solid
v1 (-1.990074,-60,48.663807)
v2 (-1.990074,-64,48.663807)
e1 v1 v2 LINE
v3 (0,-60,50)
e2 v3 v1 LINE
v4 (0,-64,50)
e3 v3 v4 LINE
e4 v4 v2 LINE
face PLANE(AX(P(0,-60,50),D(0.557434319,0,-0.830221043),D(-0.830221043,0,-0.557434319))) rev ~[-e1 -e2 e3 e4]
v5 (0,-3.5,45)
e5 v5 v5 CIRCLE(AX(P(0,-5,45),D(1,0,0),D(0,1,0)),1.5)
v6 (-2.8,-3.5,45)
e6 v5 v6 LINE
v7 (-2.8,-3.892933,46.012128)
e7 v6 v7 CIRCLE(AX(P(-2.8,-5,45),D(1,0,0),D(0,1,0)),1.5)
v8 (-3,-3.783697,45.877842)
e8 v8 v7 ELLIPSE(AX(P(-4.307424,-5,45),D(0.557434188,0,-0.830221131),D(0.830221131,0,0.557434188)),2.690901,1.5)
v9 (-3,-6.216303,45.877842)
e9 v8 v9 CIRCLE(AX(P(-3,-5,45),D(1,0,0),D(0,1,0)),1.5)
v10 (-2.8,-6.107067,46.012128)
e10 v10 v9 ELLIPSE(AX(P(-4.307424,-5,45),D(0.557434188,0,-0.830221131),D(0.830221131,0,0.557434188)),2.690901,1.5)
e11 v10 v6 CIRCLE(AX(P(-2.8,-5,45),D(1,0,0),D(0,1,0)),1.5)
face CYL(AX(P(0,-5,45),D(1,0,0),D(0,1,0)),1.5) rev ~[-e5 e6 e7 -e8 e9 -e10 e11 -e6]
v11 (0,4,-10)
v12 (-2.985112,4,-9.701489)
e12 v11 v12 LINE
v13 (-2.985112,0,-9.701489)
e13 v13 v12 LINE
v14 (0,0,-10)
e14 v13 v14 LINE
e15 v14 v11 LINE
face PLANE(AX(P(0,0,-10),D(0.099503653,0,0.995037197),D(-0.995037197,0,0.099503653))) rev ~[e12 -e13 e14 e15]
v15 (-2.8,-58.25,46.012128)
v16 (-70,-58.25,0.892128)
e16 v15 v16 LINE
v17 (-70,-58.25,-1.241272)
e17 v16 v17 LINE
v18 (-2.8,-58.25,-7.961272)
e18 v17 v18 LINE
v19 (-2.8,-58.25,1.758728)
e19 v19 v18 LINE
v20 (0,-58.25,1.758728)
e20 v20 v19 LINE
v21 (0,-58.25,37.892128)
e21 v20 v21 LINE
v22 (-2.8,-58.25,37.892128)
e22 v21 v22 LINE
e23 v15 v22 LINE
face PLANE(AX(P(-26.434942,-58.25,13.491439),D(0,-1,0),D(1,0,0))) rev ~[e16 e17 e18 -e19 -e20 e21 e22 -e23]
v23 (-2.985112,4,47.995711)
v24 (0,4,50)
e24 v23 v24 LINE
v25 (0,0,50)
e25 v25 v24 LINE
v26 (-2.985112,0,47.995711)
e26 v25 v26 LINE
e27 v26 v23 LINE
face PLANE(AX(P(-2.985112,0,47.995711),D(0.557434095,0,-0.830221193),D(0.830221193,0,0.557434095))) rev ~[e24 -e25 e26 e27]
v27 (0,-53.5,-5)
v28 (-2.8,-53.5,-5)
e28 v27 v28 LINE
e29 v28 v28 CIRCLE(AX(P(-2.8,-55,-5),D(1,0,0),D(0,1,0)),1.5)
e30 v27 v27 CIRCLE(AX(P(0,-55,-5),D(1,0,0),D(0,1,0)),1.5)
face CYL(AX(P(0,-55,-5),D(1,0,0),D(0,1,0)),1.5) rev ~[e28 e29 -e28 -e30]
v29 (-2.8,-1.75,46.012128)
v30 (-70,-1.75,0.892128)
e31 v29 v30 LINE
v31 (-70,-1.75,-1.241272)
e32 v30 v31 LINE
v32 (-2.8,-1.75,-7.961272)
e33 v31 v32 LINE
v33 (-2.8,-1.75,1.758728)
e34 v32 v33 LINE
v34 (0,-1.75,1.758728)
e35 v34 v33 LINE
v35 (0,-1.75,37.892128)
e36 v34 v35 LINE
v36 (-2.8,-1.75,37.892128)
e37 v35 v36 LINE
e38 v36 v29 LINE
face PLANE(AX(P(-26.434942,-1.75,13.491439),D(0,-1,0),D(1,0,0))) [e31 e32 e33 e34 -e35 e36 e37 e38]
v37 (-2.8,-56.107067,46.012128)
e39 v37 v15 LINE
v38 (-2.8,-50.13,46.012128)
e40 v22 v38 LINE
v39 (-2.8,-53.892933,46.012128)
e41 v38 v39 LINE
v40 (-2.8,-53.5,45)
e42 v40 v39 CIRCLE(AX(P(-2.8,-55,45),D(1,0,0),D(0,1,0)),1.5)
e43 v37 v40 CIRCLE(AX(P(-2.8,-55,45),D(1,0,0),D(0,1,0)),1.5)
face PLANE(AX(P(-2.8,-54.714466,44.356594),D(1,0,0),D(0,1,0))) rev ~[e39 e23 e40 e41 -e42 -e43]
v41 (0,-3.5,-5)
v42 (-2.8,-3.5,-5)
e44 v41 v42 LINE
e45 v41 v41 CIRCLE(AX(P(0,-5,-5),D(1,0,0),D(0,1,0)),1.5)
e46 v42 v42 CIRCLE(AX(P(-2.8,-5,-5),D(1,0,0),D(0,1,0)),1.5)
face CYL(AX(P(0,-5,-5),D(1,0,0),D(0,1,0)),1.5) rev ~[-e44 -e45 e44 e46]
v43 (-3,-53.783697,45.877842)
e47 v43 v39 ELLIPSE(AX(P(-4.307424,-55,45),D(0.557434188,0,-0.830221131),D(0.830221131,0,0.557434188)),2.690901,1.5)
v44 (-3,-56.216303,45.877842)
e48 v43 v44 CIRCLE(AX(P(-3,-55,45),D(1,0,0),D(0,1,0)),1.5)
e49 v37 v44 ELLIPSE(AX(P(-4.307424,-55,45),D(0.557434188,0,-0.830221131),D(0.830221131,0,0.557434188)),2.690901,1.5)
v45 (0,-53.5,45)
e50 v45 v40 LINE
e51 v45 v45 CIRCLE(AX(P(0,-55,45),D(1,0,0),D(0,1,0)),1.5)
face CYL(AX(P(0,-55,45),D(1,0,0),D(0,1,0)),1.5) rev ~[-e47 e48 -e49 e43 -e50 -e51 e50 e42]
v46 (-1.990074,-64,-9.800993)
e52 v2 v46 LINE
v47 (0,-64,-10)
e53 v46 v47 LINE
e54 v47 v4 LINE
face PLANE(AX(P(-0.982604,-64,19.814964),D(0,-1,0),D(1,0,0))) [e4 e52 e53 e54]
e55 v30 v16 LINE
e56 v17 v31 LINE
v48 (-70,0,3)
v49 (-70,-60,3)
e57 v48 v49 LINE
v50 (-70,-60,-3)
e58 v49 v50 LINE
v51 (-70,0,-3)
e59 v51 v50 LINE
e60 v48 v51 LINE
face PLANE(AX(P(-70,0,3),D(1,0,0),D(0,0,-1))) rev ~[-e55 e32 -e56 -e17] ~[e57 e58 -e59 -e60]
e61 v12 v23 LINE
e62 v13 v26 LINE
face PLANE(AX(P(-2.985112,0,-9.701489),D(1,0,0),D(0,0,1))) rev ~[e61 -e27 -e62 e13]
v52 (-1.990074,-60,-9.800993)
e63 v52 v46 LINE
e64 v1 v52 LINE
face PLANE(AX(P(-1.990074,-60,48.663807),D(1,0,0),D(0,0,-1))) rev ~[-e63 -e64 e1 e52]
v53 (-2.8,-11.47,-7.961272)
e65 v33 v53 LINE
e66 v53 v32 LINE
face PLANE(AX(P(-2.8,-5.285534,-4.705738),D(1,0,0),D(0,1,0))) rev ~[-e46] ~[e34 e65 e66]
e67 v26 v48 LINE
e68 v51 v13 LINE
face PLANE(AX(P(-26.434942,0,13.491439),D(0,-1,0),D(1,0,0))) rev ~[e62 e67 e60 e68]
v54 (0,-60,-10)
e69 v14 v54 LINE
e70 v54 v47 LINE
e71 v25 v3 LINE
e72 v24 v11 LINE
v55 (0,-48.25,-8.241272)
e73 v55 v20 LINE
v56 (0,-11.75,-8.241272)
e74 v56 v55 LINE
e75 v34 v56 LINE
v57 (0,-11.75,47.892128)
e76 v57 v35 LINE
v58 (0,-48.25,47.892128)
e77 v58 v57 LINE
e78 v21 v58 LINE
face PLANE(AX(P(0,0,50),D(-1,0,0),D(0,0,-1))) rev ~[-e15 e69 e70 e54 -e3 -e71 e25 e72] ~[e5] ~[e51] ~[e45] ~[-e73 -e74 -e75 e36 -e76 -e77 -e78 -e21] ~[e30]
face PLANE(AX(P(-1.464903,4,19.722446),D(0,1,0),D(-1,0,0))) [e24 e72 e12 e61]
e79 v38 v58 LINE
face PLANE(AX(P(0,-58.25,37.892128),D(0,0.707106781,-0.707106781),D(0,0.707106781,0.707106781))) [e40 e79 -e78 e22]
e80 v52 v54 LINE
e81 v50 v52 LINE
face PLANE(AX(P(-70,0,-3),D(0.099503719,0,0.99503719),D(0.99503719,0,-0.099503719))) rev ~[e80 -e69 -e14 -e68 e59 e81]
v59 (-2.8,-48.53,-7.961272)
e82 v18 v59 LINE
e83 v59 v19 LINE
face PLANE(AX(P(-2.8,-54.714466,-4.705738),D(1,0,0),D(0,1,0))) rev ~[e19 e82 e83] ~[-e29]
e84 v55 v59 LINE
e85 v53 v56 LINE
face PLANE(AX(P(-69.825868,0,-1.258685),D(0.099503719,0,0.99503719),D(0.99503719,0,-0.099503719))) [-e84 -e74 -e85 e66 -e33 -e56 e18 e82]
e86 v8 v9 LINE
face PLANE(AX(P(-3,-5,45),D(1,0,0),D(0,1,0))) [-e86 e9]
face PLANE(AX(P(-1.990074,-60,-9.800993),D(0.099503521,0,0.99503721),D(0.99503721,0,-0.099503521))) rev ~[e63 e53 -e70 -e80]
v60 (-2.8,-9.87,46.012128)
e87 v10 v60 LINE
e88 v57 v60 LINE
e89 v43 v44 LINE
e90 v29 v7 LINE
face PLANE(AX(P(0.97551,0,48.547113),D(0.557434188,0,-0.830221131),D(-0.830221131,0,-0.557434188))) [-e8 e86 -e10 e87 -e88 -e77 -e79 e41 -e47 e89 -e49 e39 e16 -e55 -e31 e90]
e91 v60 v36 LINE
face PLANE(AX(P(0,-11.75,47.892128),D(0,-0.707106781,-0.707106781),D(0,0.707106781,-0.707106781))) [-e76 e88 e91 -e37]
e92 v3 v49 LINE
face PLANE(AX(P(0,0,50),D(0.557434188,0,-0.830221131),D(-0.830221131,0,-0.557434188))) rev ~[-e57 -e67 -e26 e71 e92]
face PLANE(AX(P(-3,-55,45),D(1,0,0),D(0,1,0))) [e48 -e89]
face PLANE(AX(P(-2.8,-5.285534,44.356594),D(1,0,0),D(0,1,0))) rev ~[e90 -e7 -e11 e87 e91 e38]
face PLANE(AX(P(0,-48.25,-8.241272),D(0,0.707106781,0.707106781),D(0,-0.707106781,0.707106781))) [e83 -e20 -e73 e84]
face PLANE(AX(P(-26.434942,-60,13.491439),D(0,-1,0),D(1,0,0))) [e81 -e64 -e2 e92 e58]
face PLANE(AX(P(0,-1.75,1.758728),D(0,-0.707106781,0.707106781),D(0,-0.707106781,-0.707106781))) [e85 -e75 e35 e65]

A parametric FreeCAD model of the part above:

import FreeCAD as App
import Part
import Sketcher

V = App.Vector


def faces_at(feature, points):
    """Names of the faces that lie closest to the given points."""
    faces = feature.Shape.Faces
    near = lambda p: min(range(len(faces)), key=lambda i: faces[i].distToShape(Part.Vertex(*p))[0])
    return sorted({f"Face{near(p) + 1}" for p in points})

doc = App.newDocument("Part")
params = doc.addObject("Spreadsheet::Sheet", "Params")
for row, (alias, value) in enumerate([
    ("sketch1_height", "6 mm"),
    ("sketch1_height2", "60 mm"),
    ("pad1_length", "60 mm"),
    ("thickness_wall", "1.75 mm"),
    ("sketch2_width", "10 mm"),
    ("pad2_length", "2.8 mm"),
    ("sketch3_diameter", "3 mm"),
    ("pocket1_length", "3 mm"),
    ("sketch4_height", "60 mm"),
    ("sketch4_length", "2 mm"),
    ("pad3_length", "4 mm"),
    ("sketch5_height", "60 mm"),
    ("sketch5_length", "3 mm"),
    ("pad4_length", "4 mm"),
], start=1):
    params.set(f"A{row}", alias)
    params.set(f"B{row}", "=" + value)
    params.setAlias(f"B{row}", alias)

body = doc.addObject("PartDesign::Body", "Body")

# Sketch on XZ plane
sketch1 = body.newObject("Sketcher::SketchObject", "Sketch")
sketch1.AttachmentSupport = (doc.getObject("XZ_Plane"), [""])
sketch1.MapMode = "FlatFace"
sketch1.addGeometry([
    Part.LineSegment(V(0, 50, 0), V(-70, 3, 0)),
    Part.LineSegment(V(-70, 3, 0), V(-70, -3, 0)),
    Part.LineSegment(V(-70, -3, 0), V(0, -10, 0)),
    Part.LineSegment(V(0, -10, 0), V(0, 50, 0)),
], False)
sketch1.addConstraint([
    Sketcher.Constraint("Coincident", 0, 2, 1, 1),
    Sketcher.Constraint("Coincident", 1, 2, 2, 1),
    Sketcher.Constraint("Coincident", 2, 2, 3, 1),
    Sketcher.Constraint("Coincident", 3, 2, 0, 1),
    Sketcher.Constraint("Vertical", 1),
    Sketcher.Constraint("Vertical", 3),
    Sketcher.Constraint("PointOnObject", 2, 2, -2),
    Sketcher.Constraint("DistanceY", 1, 2, 1, 1, 6.0),
    Sketcher.Constraint("DistanceY", 3, 1, 3, 2, 60.0),
    Sketcher.Constraint("DistanceX", 0, 2, -1, 1, 70.0),
    Sketcher.Constraint("DistanceY", -1, 1, 0, 2, 3.0),
    Sketcher.Constraint("DistanceY", 2, 2, -1, 1, 10.0),
])
sketch1.setExpression("Constraints[7]", "Params.sketch1_height")
sketch1.setExpression("Constraints[8]", "Params.sketch1_height2")
pad1 = body.newObject("PartDesign::Pad", "Pad")
pad1.Profile = sketch1
pad1.setExpression("Length", "Params.pad1_length")
doc.recompute()

thickness = body.newObject("PartDesign::Thickness", "Thickness")
thickness.Base = (pad1, faces_at(pad1, [(0, -30, 20), (-70, -30, 0)]))
thickness.setExpression("Value", "Params.thickness_wall")
thickness.Reversed = True
thickness.Join = "Arc"

# Sketch on YZ plane
sketch2 = body.newObject("Sketcher::SketchObject", "Sketch001")
sketch2.AttachmentSupport = (doc.getObject("YZ_Plane"), [""])
sketch2.MapMode = "FlatFace"
sketch2.addGeometry([
    Part.LineSegment(V(-58, 38, 0), V(-48, 48, 0)),  # 0
    Part.LineSegment(V(-48, 48, 0), V(-58, 48, 0)),  # 1
    Part.LineSegment(V(-58, 48, 0), V(-58, 38, 0)),  # 2
    Part.LineSegment(V(-2, 48, 0), V(-12, 48, 0)),  # 3
    Part.LineSegment(V(-12, 48, 0), V(-2, 38, 0)),  # 4
    Part.LineSegment(V(-2, 38, 0), V(-2, 48, 0)),  # 5
    Part.LineSegment(V(-48, -8, 0), V(-58, 2, 0)),  # 6
    Part.LineSegment(V(-58, 2, 0), V(-58, -8, 0)),  # 7
    Part.LineSegment(V(-58, -8, 0), V(-48, -8, 0)),  # 8
    Part.LineSegment(V(-2, 2, 0), V(-12, -8, 0)),  # 9
    Part.LineSegment(V(-12, -8, 0), V(-2, -8, 0)),  # 10
    Part.LineSegment(V(-2, -8, 0), V(-2, 2, 0)),  # 11
], False)
sketch2.addConstraint([
    Sketcher.Constraint("Coincident", 0, 2, 1, 1),
    Sketcher.Constraint("Coincident", 1, 2, 2, 1),
    Sketcher.Constraint("Coincident", 2, 2, 0, 1),
    Sketcher.Constraint("Coincident", 3, 2, 4, 1),
    Sketcher.Constraint("Coincident", 4, 2, 5, 1),
    Sketcher.Constraint("Coincident", 5, 2, 3, 1),
    Sketcher.Constraint("Coincident", 6, 2, 7, 1),
    Sketcher.Constraint("Coincident", 7, 2, 8, 1),
    Sketcher.Constraint("Coincident", 8, 2, 6, 1),
    Sketcher.Constraint("Coincident", 9, 2, 10, 1),
    Sketcher.Constraint("Coincident", 10, 2, 11, 1),
    Sketcher.Constraint("Coincident", 11, 2, 9, 1),
    Sketcher.Constraint("Horizontal", 1),
    Sketcher.Constraint("Vertical", 2),
    Sketcher.Constraint("Horizontal", 3),
    Sketcher.Constraint("Vertical", 5),
    Sketcher.Constraint("Vertical", 7),
    Sketcher.Constraint("Horizontal", 8),
    Sketcher.Constraint("Horizontal", 10),
    Sketcher.Constraint("Vertical", 11),
    Sketcher.Constraint("Perpendicular", 0, 4),
    Sketcher.Constraint("Parallel", 4, 6),
    Sketcher.Constraint("Perpendicular", 6, 9),
    Sketcher.Constraint("Horizontal", 1, 2, 3, 2),
    Sketcher.Constraint("Horizontal", 2, 2, 4, 2),
    Sketcher.Constraint("Horizontal", 8, 2, 9, 2),
    Sketcher.Constraint("Horizontal", 6, 2, 11, 2),
    Sketcher.Constraint("Vertical", 2, 2, 6, 2),
    Sketcher.Constraint("Vertical", 0, 2, 8, 2),
    Sketcher.Constraint("Vertical", 3, 2, 9, 2),
    Sketcher.Constraint("Vertical", 5, 2, 10, 2),
    Sketcher.Constraint("DistanceX", 1, 2, 1, 1, 10.0),
    Sketcher.Constraint("DistanceX", 0, 2, 3, 2, 36.5),
    Sketcher.Constraint("DistanceX", 0, 2, -1, 1, 48.25),
    Sketcher.Constraint("DistanceY", 6, 2, 2, 2, 36.1334),
    Sketcher.Constraint("DistanceY", -1, 1, 6, 2, 1.758728),
])
sketch2.setExpression("Constraints[31]", "Params.sketch2_width")
pad2 = body.newObject("PartDesign::Pad", "Pad001")
pad2.Profile = sketch2
pad2.setExpression("Length", "Params.pad2_length")
pad2.Reversed = True

# Sketch on YZ plane
sketch3 = body.newObject("Sketcher::SketchObject", "Sketch002")
sketch3.AttachmentSupport = (doc.getObject("YZ_Plane"), [""])
sketch3.MapMode = "FlatFace"
sketch3.addGeometry([
    Part.Circle(V(-55, 45, 0), V(0, 0, 1), 1.5),
    Part.Circle(V(-5, 45, 0), V(0, 0, 1), 1.5),
    Part.Circle(V(-55, -5, 0), V(0, 0, 1), 1.5),
    Part.Circle(V(-5, -5, 0), V(0, 0, 1), 1.5),
], False)
sketch3.addConstraint([
    Sketcher.Constraint("Equal", 0, 1),
    Sketcher.Constraint("Equal", 1, 2),
    Sketcher.Constraint("Equal", 2, 3),
    Sketcher.Constraint("Horizontal", 0, 3, 1, 3),
    Sketcher.Constraint("Horizontal", 2, 3, 3, 3),
    Sketcher.Constraint("Vertical", 0, 3, 2, 3),
    Sketcher.Constraint("Vertical", 1, 3, 3, 3),
    Sketcher.Constraint("Diameter", 0, 3.0),
    Sketcher.Constraint("DistanceX", 0, 3, -1, 1, 55.0),
    Sketcher.Constraint("DistanceY", -1, 1, 0, 3, 45.0),
    Sketcher.Constraint("DistanceX", 1, 3, -1, 1, 5.0),
    Sketcher.Constraint("DistanceY", 2, 3, -1, 1, 5.0),
])
sketch3.setExpression("Constraints[7]", "Params.sketch3_diameter")
pocket1 = body.newObject("PartDesign::Pocket", "Pocket")
pocket1.Profile = sketch3
pocket1.setExpression("Length", "Params.pocket1_length")

# Sketch on XZ plane
sketch4 = body.newObject("Sketcher::SketchObject", "Sketch003")
sketch4.AttachmentSupport = (doc.getObject("XZ_Plane"), [""])
sketch4.MapMode = "FlatFace"
sketch4.AttachmentOffset = App.Placement(V(0, 0, 60), App.Rotation())
sketch4.addGeometry([
    Part.LineSegment(V(0, 50, 0), V(-2, 48.7, 0)),
    Part.LineSegment(V(-2, 48.7, 0), V(-2, -9.8, 0)),
    Part.LineSegment(V(-2, -9.8, 0), V(0, -10, 0)),
    Part.LineSegment(V(0, -10, 0), V(0, 50, 0)),
], False)
sketch4.addConstraint([
    Sketcher.Constraint("Coincident", 0, 2, 1, 1),
    Sketcher.Constraint("Coincident", 1, 2, 2, 1),
    Sketcher.Constraint("Coincident", 2, 2, 3, 1),
    Sketcher.Constraint("Coincident", 3, 2, 0, 1),
    Sketcher.Constraint("Vertical", 1),
    Sketcher.Constraint("Vertical", 3),
    Sketcher.Constraint("PointOnObject", 2, 2, -2),
    Sketcher.Constraint("DistanceY", 3, 1, 3, 2, 60.0),
    Sketcher.Constraint("Distance", 2, 2.0),
    Sketcher.Constraint("DistanceY", 2, 2, -1, 1, 10.0),
    Sketcher.Constraint("DistanceY", 1, 2, 1, 1, 58.4648),
    Sketcher.Constraint("Distance", 0, 2.397041),
])
sketch4.setExpression("Constraints[7]", "Params.sketch4_height")
sketch4.setExpression("Constraints[8]", "Params.sketch4_length")
pad3 = body.newObject("PartDesign::Pad", "Pad002")
pad3.Profile = sketch4
pad3.setExpression("Length", "Params.pad3_length")

# Sketch on XZ plane
sketch5 = body.newObject("Sketcher::SketchObject", "Sketch004")
sketch5.AttachmentSupport = (doc.getObject("XZ_Plane"), [""])
sketch5.MapMode = "FlatFace"
sketch5.addGeometry([
    Part.LineSegment(V(-3, -9.7, 0), V(-3, 48, 0)),
    Part.LineSegment(V(-3, 48, 0), V(0, 50, 0)),
    Part.LineSegment(V(0, 50, 0), V(0, -10, 0)),
    Part.LineSegment(V(0, -10, 0), V(-3, -9.7, 0)),
], False)
sketch5.addConstraint([
    Sketcher.Constraint("Coincident", 0, 2, 1, 1),
    Sketcher.Constraint("Coincident", 1, 2, 2, 1),
    Sketcher.Constraint("Coincident", 2, 2, 3, 1),
    Sketcher.Constraint("Coincident", 3, 2, 0, 1),
    Sketcher.Constraint("Vertical", 0),
    Sketcher.Constraint("Vertical", 2),
    Sketcher.Constraint("PointOnObject", 1, 2, -2),
    Sketcher.Constraint("DistanceY", 2, 2, 2, 1, 60.0),
    Sketcher.Constraint("Distance", 3, 3.0),
    Sketcher.Constraint("DistanceY", -1, 1, 1, 2, 50.0),
    Sketcher.Constraint("DistanceY", 0, 1, 0, 2, 57.6972),
    Sketcher.Constraint("DistanceX", 0, 2, -1, 1, 2.985112),
])
sketch5.setExpression("Constraints[7]", "Params.sketch5_height")
sketch5.setExpression("Constraints[8]", "Params.sketch5_length")
pad4 = body.newObject("PartDesign::Pad", "Pad003")
pad4.Profile = sketch5
pad4.setExpression("Length", "Params.pad4_length")
pad4.Reversed = True

doc.recompute()
